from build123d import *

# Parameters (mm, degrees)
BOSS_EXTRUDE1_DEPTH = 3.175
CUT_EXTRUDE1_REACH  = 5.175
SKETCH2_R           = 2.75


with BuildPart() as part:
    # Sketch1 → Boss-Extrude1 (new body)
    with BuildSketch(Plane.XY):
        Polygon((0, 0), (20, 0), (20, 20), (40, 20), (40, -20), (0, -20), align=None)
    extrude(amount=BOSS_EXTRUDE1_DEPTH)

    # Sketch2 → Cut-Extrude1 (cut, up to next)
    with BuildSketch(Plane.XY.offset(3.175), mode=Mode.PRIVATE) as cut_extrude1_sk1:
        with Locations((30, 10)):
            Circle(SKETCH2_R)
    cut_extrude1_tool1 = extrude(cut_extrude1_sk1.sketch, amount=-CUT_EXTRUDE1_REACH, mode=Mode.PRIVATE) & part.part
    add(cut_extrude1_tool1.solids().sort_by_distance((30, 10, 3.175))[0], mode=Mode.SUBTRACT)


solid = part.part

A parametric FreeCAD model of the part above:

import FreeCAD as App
import Part
import Sketcher
from FreeCAD import Vector
Q = App.Units.Quantity


def add_polygon(sketch, points):
    """Adds a closed chain of lines whose ends are joined by coincident constraints."""
    first, n = sketch.GeometryCount, len(points)
    for a, b in zip(points, points[1:] + points[:1]):
        sketch.addGeometry(Part.LineSegment(App.Vector(*a, 0), App.Vector(*b, 0)), False)
    for i in range(n):
        sketch.addConstraint(Sketcher.Constraint("Coincident", first + i, 2, first + (i + 1) % n, 1))

doc = App.newDocument("Part")
body = doc.addObject("PartDesign::Body", "Body")

# Sketch on XY plane
sketch1 = body.newObject("Sketcher::SketchObject", "Sketch")
sketch1.AttachmentSupport = (doc.getObject("XY_Plane"), [""])
sketch1.MapMode = "FlatFace"
add_polygon(sketch1, [(20, 0), (0, 0), (0, -20), (40, -20), (40, 20), (20, 20)])  # lines 0-5
sketch1.addConstraint([
    Sketcher.Constraint("Horizontal", 0),
    Sketcher.Constraint("Vertical", 1),
    Sketcher.Constraint("Horizontal", 2),
    Sketcher.Constraint("Vertical", 3),
    Sketcher.Constraint("Horizontal", 4),
    Sketcher.Constraint("Vertical", 5),
    Sketcher.Constraint("Coincident", 0, 2, -1, 1),
    Sketcher.Constraint("Equal", 0, 4),
    Sketcher.Constraint("Equal", 4, 1),
    Sketcher.Constraint("Equal", 2, 3),
    Sketcher.Constraint("DistanceX", 0, 2, 0, 1, Q("20 mm")),
])
pad1 = body.newObject("PartDesign::Pad", "Pad")
pad1.Profile = sketch1
pad1.Length = 3.175

# Sketch on XY plane
sketch2 = body.newObject("Sketcher::SketchObject", "Sketch001")
sketch2.AttachmentSupport = (doc.getObject("XY_Plane"), [""])
sketch2.MapMode = "FlatFace"
sketch2.AttachmentOffset = App.Placement(Vector(0, 0, 3.175), App.Rotation())
sketch2.addGeometry(Part.Circle(Vector(30, 10, 0), Vector(0, 0, 1), 2.8), False)
sketch2.addConstraint([
    Sketcher.Constraint("Diameter", 0, Q("5.5 mm")),
    Sketcher.Constraint("DistanceX", -1, 1, 0, 3, Q("30 mm")),
    Sketcher.Constraint("DistanceY", -1, 1, 0, 3, Q("10 mm")),
])
pocket1 = body.newObject("PartDesign::Pocket", "Pocket")
pocket1.Profile = sketch2
pocket1.Type = "UpToFirst"

doc.recompute()
